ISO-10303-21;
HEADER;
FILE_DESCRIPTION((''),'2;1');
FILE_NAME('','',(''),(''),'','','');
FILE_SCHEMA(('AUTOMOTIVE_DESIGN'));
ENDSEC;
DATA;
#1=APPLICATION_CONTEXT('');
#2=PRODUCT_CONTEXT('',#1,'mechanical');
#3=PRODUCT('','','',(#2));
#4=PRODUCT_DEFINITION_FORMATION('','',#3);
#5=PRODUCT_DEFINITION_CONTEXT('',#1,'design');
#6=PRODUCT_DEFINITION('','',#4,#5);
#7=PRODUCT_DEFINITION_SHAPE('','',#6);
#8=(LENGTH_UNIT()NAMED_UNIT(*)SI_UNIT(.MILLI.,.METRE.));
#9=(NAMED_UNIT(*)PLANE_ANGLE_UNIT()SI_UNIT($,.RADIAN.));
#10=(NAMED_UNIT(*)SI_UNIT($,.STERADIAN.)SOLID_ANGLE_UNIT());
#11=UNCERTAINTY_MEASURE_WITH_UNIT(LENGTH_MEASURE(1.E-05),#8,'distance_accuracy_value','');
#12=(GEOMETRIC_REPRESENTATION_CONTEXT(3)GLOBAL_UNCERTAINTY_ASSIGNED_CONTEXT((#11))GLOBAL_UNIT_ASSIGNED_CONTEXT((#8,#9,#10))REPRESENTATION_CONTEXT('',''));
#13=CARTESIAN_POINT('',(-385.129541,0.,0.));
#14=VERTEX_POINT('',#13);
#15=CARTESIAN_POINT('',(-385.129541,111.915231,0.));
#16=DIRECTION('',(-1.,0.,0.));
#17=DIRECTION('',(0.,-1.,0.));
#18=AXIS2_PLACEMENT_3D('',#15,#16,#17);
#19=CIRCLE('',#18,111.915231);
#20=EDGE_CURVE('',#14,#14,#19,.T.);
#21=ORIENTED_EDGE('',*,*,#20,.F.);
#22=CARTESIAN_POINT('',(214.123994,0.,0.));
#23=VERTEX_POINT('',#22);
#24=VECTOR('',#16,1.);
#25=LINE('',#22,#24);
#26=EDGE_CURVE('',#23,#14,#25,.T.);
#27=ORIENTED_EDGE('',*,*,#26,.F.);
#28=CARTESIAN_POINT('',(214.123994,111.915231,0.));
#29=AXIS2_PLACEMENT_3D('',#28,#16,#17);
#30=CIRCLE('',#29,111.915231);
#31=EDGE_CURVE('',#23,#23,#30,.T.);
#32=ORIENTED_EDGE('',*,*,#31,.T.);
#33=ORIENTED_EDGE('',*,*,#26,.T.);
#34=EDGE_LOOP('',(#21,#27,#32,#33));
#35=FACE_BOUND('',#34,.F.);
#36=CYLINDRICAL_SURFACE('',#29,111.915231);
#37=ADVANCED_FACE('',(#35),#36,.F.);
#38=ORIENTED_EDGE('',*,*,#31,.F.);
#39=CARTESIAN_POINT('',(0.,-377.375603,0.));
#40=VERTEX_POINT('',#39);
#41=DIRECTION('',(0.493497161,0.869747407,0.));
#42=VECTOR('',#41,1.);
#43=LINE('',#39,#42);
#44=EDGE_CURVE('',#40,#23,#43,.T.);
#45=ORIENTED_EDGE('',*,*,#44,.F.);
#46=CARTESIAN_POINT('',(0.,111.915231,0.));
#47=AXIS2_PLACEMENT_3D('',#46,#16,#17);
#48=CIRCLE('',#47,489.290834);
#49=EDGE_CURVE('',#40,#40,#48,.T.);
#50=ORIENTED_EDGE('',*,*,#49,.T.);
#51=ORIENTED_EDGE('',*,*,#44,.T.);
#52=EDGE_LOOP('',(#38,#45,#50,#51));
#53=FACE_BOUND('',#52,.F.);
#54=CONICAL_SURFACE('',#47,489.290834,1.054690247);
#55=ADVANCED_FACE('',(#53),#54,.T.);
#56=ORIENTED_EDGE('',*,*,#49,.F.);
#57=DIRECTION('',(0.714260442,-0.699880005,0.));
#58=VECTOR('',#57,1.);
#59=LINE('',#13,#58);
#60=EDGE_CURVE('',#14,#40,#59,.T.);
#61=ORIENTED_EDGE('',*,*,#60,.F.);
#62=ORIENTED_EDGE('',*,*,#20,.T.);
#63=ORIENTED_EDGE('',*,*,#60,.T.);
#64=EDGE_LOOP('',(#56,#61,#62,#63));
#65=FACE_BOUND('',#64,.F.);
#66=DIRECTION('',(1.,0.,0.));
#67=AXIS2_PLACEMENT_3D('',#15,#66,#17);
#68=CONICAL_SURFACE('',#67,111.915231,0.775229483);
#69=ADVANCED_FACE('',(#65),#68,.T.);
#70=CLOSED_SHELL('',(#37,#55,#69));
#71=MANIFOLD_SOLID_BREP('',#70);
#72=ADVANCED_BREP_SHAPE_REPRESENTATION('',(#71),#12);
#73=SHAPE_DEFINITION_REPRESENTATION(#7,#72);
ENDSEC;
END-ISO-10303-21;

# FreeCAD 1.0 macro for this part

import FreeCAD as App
import Part
import Sketcher


def add_polygon(sketch, points):
    """Adds a closed chain of lines whose ends are joined by coincident constraints."""
    first, n = sketch.GeometryCount, len(points)
    for a, b in zip(points, points[1:] + points[:1]):
        sketch.addGeometry(Part.LineSegment(App.Vector(*a, 0), App.Vector(*b, 0)), False)
    for i in range(n):
        sketch.addConstraint(Sketcher.Constraint("Coincident", first + i, 2, first + (i + 1) % n, 1))

doc = App.newDocument("Part")
params = doc.addObject("Spreadsheet::Sheet", "Params")
for row, (alias, value) in enumerate([
    ("revolution_angle", "360 deg"),
], start=1):
    params.set(f"A{row}", alias)
    params.set(f"B{row}", "=" + value)
    params.setAlias(f"B{row}", alias)

body = doc.addObject("PartDesign::Body", "Body")

# Sketch on XY plane
sketch1 = body.newObject("Sketcher::SketchObject", "Sketch")
sketch1.AttachmentSupport = (doc.getObject("XY_Plane"), [""])
sketch1.MapMode = "FlatFace"
add_polygon(sketch1, [(-385.129541, 0), (0, -377.375603), (214.123994, 0)])  # lines 0-2
sketch1.addGeometry(Part.LineSegment(App.Vector(214.123994, 111.915231, 0), App.Vector(-385.129541, 111.915231, 0)), True)  # axis
sketch1.addConstraint([
    Sketcher.Constraint("Horizontal", 2),
    Sketcher.Constraint("Horizontal", 3),
    Sketcher.Constraint("PointOnObject", 0, 2, -2),
    Sketcher.Constraint("PointOnObject", 1, 2, -1),
    Sketcher.Constraint("Vertical", 1, 2, 3, 1),
    Sketcher.Constraint("Vertical", 2, 2, 3, 2),
    Sketcher.Constraint("DistanceX", 2, 2, 2, 1, 599.253535),
    Sketcher.Constraint("DistanceX", 2, 2, -1, 1, 385.129541),
    Sketcher.Constraint("DistanceY", -1, 1, 3, 1, 111.915231),
    Sketcher.Constraint("Distance", 0, 539.200435),
])
revolution = body.newObject("PartDesign::Revolution", "Revolution")
revolution.Profile = sketch1
revolution.ReferenceAxis = (sketch1, ["Axis0"])
revolution.setExpression("Angle", "Params.revolution_angle")

doc.recompute()
